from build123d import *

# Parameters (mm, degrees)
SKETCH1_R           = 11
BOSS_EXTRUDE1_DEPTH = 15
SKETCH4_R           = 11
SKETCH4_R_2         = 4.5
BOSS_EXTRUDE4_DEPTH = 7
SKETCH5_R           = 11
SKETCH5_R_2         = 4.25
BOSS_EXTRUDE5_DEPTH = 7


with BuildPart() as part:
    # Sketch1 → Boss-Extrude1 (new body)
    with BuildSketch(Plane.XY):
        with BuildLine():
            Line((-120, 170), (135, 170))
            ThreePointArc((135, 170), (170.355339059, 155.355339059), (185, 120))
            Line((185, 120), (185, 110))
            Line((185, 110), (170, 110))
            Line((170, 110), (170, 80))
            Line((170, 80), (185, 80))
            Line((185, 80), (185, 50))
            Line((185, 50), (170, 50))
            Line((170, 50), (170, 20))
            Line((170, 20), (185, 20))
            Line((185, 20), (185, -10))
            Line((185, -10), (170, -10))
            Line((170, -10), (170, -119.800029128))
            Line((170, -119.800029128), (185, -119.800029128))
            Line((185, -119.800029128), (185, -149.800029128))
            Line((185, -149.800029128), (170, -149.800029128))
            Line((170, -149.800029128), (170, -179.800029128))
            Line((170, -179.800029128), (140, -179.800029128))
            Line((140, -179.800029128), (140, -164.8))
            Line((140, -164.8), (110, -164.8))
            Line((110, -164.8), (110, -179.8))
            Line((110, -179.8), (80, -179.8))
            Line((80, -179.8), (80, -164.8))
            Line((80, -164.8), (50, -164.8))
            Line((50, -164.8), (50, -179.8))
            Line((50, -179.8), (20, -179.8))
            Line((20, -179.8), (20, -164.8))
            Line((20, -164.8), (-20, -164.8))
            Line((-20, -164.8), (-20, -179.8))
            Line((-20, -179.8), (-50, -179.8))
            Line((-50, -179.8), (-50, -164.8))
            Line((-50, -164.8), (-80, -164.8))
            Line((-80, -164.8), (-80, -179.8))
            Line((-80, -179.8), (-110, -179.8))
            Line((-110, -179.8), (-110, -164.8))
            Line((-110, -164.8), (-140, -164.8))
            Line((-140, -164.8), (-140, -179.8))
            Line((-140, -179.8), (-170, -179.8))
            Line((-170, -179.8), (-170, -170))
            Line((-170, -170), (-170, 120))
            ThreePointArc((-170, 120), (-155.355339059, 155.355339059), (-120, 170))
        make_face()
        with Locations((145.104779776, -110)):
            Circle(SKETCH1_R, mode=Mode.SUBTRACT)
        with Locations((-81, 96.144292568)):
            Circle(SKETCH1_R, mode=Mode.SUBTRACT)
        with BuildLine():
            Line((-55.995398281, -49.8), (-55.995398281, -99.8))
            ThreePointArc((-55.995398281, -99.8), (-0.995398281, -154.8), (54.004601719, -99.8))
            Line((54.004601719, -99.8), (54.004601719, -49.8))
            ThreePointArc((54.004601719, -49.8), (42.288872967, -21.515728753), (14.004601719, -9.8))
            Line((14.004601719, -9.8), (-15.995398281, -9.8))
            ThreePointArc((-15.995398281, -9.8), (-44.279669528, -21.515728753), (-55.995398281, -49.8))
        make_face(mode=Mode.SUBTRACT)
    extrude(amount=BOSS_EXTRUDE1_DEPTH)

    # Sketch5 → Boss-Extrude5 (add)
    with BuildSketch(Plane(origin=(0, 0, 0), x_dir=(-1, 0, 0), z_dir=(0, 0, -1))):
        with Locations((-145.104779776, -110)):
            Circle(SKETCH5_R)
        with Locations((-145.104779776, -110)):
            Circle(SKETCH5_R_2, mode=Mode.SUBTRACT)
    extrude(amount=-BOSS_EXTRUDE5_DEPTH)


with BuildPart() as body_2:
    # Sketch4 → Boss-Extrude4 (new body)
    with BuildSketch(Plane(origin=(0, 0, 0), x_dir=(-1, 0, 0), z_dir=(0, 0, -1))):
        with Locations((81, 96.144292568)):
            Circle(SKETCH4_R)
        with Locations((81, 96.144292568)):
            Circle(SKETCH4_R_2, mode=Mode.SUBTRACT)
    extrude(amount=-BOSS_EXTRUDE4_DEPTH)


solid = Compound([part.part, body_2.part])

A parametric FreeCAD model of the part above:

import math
import FreeCAD as App
import Part
import Sketcher
Q = App.Units.Quantity

doc = App.newDocument("Part")
params = doc.addObject("Spreadsheet::Sheet", "Params")
for row, (alias, value) in enumerate([
    ("sketch1_diameter", "22 mm"),
    ("sketch1_radius", "50 mm"),
    ("sketch1_radius2", "40 mm"),
    ("sketch1_radius3", "55 mm"),
    ("sketch1_width", "255 mm"),
    ("pad1_length", "15 mm"),
    ("sketch2_diameter", "22 mm"),
    ("sketch2_diameter2", "8.5 mm"),
    ("pad2_length", "7 mm"),
    ("sketch3_diameter", "22 mm"),
    ("sketch3_diameter2", "9 mm"),
    ("pad3_length", "7 mm"),
], start=1):
    params.set(f"A{row}", alias)
    params.set(f"B{row}", "=" + value)
    params.setAlias(f"B{row}", alias)

body = doc.addObject("PartDesign::Body", "Body")

# Sketch on XY plane
sketch1 = doc.addObject("Sketcher::SketchObject", "Sketch")
body.addObject(sketch1)
sketch1.AttachmentSupport = (doc.XY_Plane, [""])
sketch1.MapMode = "FlatFace"
sketch1.addGeometry([
    Part.LineSegment(App.Vector(135, 170, 0), App.Vector(-120, 170, 0)),  # 0
    Part.ArcOfCircle(Part.Circle(App.Vector(-120, 120, 0), App.Vector(0, 0, 1), 50), math.radians(90), math.radians(180)),  # 1
    Part.LineSegment(App.Vector(-170, 120, 0), App.Vector(-170, -180, 0)),  # 2
    Part.LineSegment(App.Vector(-170, -180, 0), App.Vector(-140, -180, 0)),  # 3
    Part.LineSegment(App.Vector(-140, -180, 0), App.Vector(-140, -165, 0)),  # 4
    Part.LineSegment(App.Vector(-140, -165, 0), App.Vector(-110, -165, 0)),  # 5
    Part.LineSegment(App.Vector(-110, -165, 0), App.Vector(-110, -180, 0)),  # 6
    Part.LineSegment(App.Vector(-110, -180, 0), App.Vector(-80, -180, 0)),  # 7
    Part.LineSegment(App.Vector(-80, -180, 0), App.Vector(-80, -165, 0)),  # 8
    Part.LineSegment(App.Vector(-80, -165, 0), App.Vector(-50, -165, 0)),  # 9
    Part.LineSegment(App.Vector(-50, -165, 0), App.Vector(-50, -180, 0)),  # 10
    Part.LineSegment(App.Vector(-50, -180, 0), App.Vector(-20, -180, 0)),  # 11
    Part.LineSegment(App.Vector(-20, -180, 0), App.Vector(-20, -165, 0)),  # 12
    Part.LineSegment(App.Vector(-20, -165, 0), App.Vector(20, -165, 0)),  # 13
    Part.LineSegment(App.Vector(20, -165, 0), App.Vector(20, -180, 0)),  # 14
    Part.LineSegment(App.Vector(20, -180, 0), App.Vector(50, -180, 0)),  # 15
    Part.LineSegment(App.Vector(50, -180, 0), App.Vector(50, -165, 0)),  # 16
    Part.LineSegment(App.Vector(50, -165, 0), App.Vector(80, -165, 0)),  # 17
    Part.LineSegment(App.Vector(80, -165, 0), App.Vector(80, -180, 0)),  # 18
    Part.LineSegment(App.Vector(80, -180, 0), App.Vector(110, -180, 0)),  # 19
    Part.LineSegment(App.Vector(110, -180, 0), App.Vector(110, -165, 0)),  # 20
    Part.LineSegment(App.Vector(110, -165, 0), App.Vector(140, -165, 0)),  # 21
    Part.LineSegment(App.Vector(140, -165, 0), App.Vector(140, -180, 0)),  # 22
    Part.LineSegment(App.Vector(140, -180, 0), App.Vector(170, -180, 0)),  # 23
    Part.LineSegment(App.Vector(170, -180, 0), App.Vector(170, -150, 0)),  # 24
    Part.LineSegment(App.Vector(170, -150, 0), App.Vector(185, -150, 0)),  # 25
    Part.LineSegment(App.Vector(185, -150, 0), App.Vector(185, -120, 0)),  # 26
    Part.LineSegment(App.Vector(185, -120, 0), App.Vector(170, -120, 0)),  # 27
    Part.LineSegment(App.Vector(170, -120, 0), App.Vector(170, -10, 0)),  # 28
    Part.LineSegment(App.Vector(170, -10, 0), App.Vector(185, -10, 0)),  # 29
    Part.LineSegment(App.Vector(185, -10, 0), App.Vector(185, 20, 0)),  # 30
    Part.LineSegment(App.Vector(185, 20, 0), App.Vector(170, 20, 0)),  # 31
    Part.LineSegment(App.Vector(170, 20, 0), App.Vector(170, 50, 0)),  # 32
    Part.LineSegment(App.Vector(170, 50, 0), App.Vector(185, 50, 0)),  # 33
    Part.LineSegment(App.Vector(185, 50, 0), App.Vector(185, 80, 0)),  # 34
    Part.LineSegment(App.Vector(185, 80, 0), App.Vector(170, 80, 0)),  # 35
    Part.LineSegment(App.Vector(170, 80, 0), App.Vector(170, 110, 0)),  # 36
    Part.LineSegment(App.Vector(170, 110, 0), App.Vector(185, 110, 0)),  # 37
    Part.LineSegment(App.Vector(185, 110, 0), App.Vector(185, 120, 0)),  # 38
    Part.ArcOfCircle(Part.Circle(App.Vector(135, 120, 0), App.Vector(0, 0, 1), 50), math.radians(0), math.radians(90)),  # 39
    Part.Circle(App.Vector(145, -110, 0), App.Vector(0, 0, 1), 11),  # 40
    Part.ArcOfCircle(Part.Circle(App.Vector(-16, -50, 0), App.Vector(0, 0, 1), 40), math.radians(90), math.radians(180)),  # 41
    Part.LineSegment(App.Vector(-16, -10, 0), App.Vector(14, -10, 0)),  # 42
    Part.ArcOfCircle(Part.Circle(App.Vector(14, -50, 0), App.Vector(0, 0, 1), 40), math.radians(0), math.radians(90)),  # 43
    Part.LineSegment(App.Vector(54, -50, 0), App.Vector(54, -100, 0)),  # 44
    Part.ArcOfCircle(Part.Circle(App.Vector(-1, -100, 0), App.Vector(0, 0, 1), 55), math.radians(180), math.radians(360)),  # 45
    Part.LineSegment(App.Vector(-56, -100, 0), App.Vector(-56, -50, 0)),  # 46
    Part.Circle(App.Vector(-81, 96, 0), App.Vector(0, 0, 1), 11),  # 47
], False)
sketch1.addConstraint([
    Sketcher.Constraint("Tangent", 0, 2, 1, 1),
    Sketcher.Constraint("Tangent", 1, 2, 2, 1),
    Sketcher.Constraint("Coincident", 2, 2, 3, 1),
    Sketcher.Constraint("Coincident", 3, 2, 4, 1),
    Sketcher.Constraint("Coincident", 4, 2, 5, 1),
    Sketcher.Constraint("Coincident", 5, 2, 6, 1),
    Sketcher.Constraint("Coincident", 6, 2, 7, 1),
    Sketcher.Constraint("Coincident", 7, 2, 8, 1),
    Sketcher.Constraint("Coincident", 8, 2, 9, 1),
    Sketcher.Constraint("Coincident", 9, 2, 10, 1),
    Sketcher.Constraint("Coincident", 10, 2, 11, 1),
    Sketcher.Constraint("Coincident", 11, 2, 12, 1),
    Sketcher.Constraint("Coincident", 12, 2, 13, 1),
    Sketcher.Constraint("Coincident", 13, 2, 14, 1),
    Sketcher.Constraint("Coincident", 14, 2, 15, 1),
    Sketcher.Constraint("Coincident", 15, 2, 16, 1),
    Sketcher.Constraint("Coincident", 16, 2, 17, 1),
    Sketcher.Constraint("Coincident", 17, 2, 18, 1),
    Sketcher.Constraint("Coincident", 18, 2, 19, 1),
    Sketcher.Constraint("Coincident", 19, 2, 20, 1),
    Sketcher.Constraint("Coincident", 20, 2, 21, 1),
    Sketcher.Constraint("Coincident", 21, 2, 22, 1),
    Sketcher.Constraint("Coincident", 22, 2, 23, 1),
    Sketcher.Constraint("Coincident", 23, 2, 24, 1),
    Sketcher.Constraint("Coincident", 24, 2, 25, 1),
    Sketcher.Constraint("Coincident", 25, 2, 26, 1),
    Sketcher.Constraint("Coincident", 26, 2, 27, 1),
    Sketcher.Constraint("Coincident", 27, 2, 28, 1),
    Sketcher.Constraint("Coincident", 28, 2, 29, 1),
    Sketcher.Constraint("Coincident", 29, 2, 30, 1),
    Sketcher.Constraint("Coincident", 30, 2, 31, 1),
    Sketcher.Constraint("Coincident", 31, 2, 32, 1),
    Sketcher.Constraint("Coincident", 32, 2, 33, 1),
    Sketcher.Constraint("Coincident", 33, 2, 34, 1),
    Sketcher.Constraint("Coincident", 34, 2, 35, 1),
    Sketcher.Constraint("Coincident", 35, 2, 36, 1),
    Sketcher.Constraint("Coincident", 36, 2, 37, 1),
    Sketcher.Constraint("Coincident", 37, 2, 38, 1),
    Sketcher.Constraint("Tangent", 38, 2, 39, 1),
    Sketcher.Constraint("Tangent", 39, 2, 0, 1),
    Sketcher.Constraint("Tangent", 41, 1, 42, 1),
    Sketcher.Constraint("Tangent", 42, 2, 43, 2),
    Sketcher.Constraint("Tangent", 43, 1, 44, 1),
    Sketcher.Constraint("Tangent", 44, 2, 45, 2),
    Sketcher.Constraint("Tangent", 45, 1, 46, 1),
    Sketcher.Constraint("Tangent", 46, 2, 41, 2),
    Sketcher.Constraint("Horizontal", 0),
    Sketcher.Constraint("Vertical", 2),
    Sketcher.Constraint("Horizontal", 3),
    Sketcher.Constraint("Vertical", 4),
    Sketcher.Constraint("Horizontal", 5),
    Sketcher.Constraint("Vertical", 6),
    Sketcher.Constraint("Horizontal", 7),
    Sketcher.Constraint("Vertical", 8),
    Sketcher.Constraint("Horizontal", 9),
    Sketcher.Constraint("Vertical", 10),
    Sketcher.Constraint("Horizontal", 11),
    Sketcher.Constraint("Vertical", 12),
    Sketcher.Constraint("Horizontal", 13),
    Sketcher.Constraint("Vertical", 14),
    Sketcher.Constraint("Horizontal", 15),
    Sketcher.Constraint("Vertical", 16),
    Sketcher.Constraint("Horizontal", 17),
    Sketcher.Constraint("Vertical", 18),
    Sketcher.Constraint("Horizontal", 19),
    Sketcher.Constraint("Vertical", 20),
    Sketcher.Constraint("Horizontal", 21),
    Sketcher.Constraint("Vertical", 22),
    Sketcher.Constraint("Horizontal", 23),
    Sketcher.Constraint("Vertical", 24),
    Sketcher.Constraint("Horizontal", 25),
    Sketcher.Constraint("Vertical", 26),
    Sketcher.Constraint("Horizontal", 27),
    Sketcher.Constraint("Vertical", 28),
    Sketcher.Constraint("Horizontal", 29),
    Sketcher.Constraint("Vertical", 30),
    Sketcher.Constraint("Horizontal", 31),
    Sketcher.Constraint("Vertical", 32),
    Sketcher.Constraint("Horizontal", 33),
    Sketcher.Constraint("Vertical", 34),
    Sketcher.Constraint("Horizontal", 35),
    Sketcher.Constraint("Vertical", 36),
    Sketcher.Constraint("Horizontal", 37),
    Sketcher.Constraint("Vertical", 38),
    Sketcher.Constraint("Horizontal", 42),
    Sketcher.Constraint("Vertical", 44),
    Sketcher.Constraint("Vertical", 46),
    Sketcher.Constraint("Equal", 1, 39),
    Sketcher.Constraint("Equal", 41, 43),
    Sketcher.Constraint("Equal", 40, 47),
    Sketcher.Constraint("Symmetric", 11, 2, 14, 2, -2),
    Sketcher.Constraint("Symmetric", 9, 2, 16, 2, -2),
    Sketcher.Constraint("Symmetric", 7, 2, 18, 2, -2),
    Sketcher.Constraint("Symmetric", 5, 2, 20, 2, -2),
    Sketcher.Constraint("Horizontal", 3, 2, 6, 2),
    Sketcher.Constraint("Horizontal", 5, 2, 8, 2),
    Sketcher.Constraint("Horizontal", 7, 2, 10, 2),
    Sketcher.Constraint("Horizontal", 9, 2, 12, 2),
    Sketcher.Constraint("Vertical", 24, 2, 27, 2),
    Sketcher.Constraint("Vertical", 26, 2, 29, 2),
    Sketcher.Constraint("Vertical", 28, 2, 31, 2),
    Sketcher.Constraint("Vertical", 30, 2, 33, 2),
    Sketcher.Constraint("Vertical", 32, 2, 35, 2),
    Sketcher.Constraint("Vertical", 34, 2, 37, 2),
    Sketcher.Constraint("Equal", 3, 5),
    Sketcher.Constraint("Equal", 5, 7),
    Sketcher.Constraint("Equal", 7, 9),
    Sketcher.Constraint("Equal", 9, 11),
    Sketcher.Constraint("Equal", 19, 21),
    Sketcher.Constraint("Equal", 21, 23),
    Sketcher.Constraint("Equal", 23, 42),
    Sketcher.Constraint("Equal", 37, 4),
    Sketcher.Constraint("Equal", 42, 24),
    Sketcher.Constraint("Equal", 24, 26),
    Sketcher.Constraint("Equal", 26, 30),
    Sketcher.Constraint("Equal", 30, 32),
    Sketcher.Constraint("Equal", 32, 34),
    Sketcher.Constraint("Equal", 34, 36),
    Sketcher.Constraint("Diameter", 40, Q("22 mm")),
    Sketcher.Constraint("Radius", 1, Q("50 mm")),
    Sketcher.Constraint("Radius", 41, Q("40 mm")),
    Sketcher.Constraint("Radius", 45, Q("55 mm")),
    Sketcher.Constraint("DistanceX", 0, 2, 0, 1, Q("255 mm")),
    Sketcher.Constraint("DistanceX", 13, 1, 13, 2, Q("40 mm")),
    Sketcher.Constraint("DistanceY", 38, 1, 38, 2, Q("10 mm")),
    Sketcher.Constraint("DistanceY", 44, 2, 44, 1, Q("50 mm")),
    Sketcher.Constraint("DistanceY", 2, 2, 2, 1, Q("299.8 mm")),
    Sketcher.Constraint("DistanceY", -1, 1, 1, 3, Q("120 mm")),
    Sketcher.Constraint("DistanceY", 40, 3, -1, 1, Q("110 mm")),
    Sketcher.Constraint("DistanceX", 47, 3, -1, 1, Q("81 mm")),
    Sketcher.Constraint("DistanceY", 2, 2, 45, 3, Q("80 mm")),
    Sketcher.Constraint("DistanceY", 22, 2, 22, 1, Q("15.000029 mm")),
    Sketcher.Constraint("DistanceX", 41, 3, -1, 1, Q("15.995398 mm")),
    Sketcher.Constraint("DistanceX", -1, 1, 40, 3, Q("145.10478 mm")),
    Sketcher.Constraint("DistanceY", -1, 1, 47, 3, Q("96.144293 mm")),
])
sketch1.setExpression("Constraints[118]", "Params.sketch1_diameter")
sketch1.setExpression("Constraints[119]", "Params.sketch1_radius")
sketch1.setExpression("Constraints[120]", "Params.sketch1_radius2")
sketch1.setExpression("Constraints[121]", "Params.sketch1_radius3")
sketch1.setExpression("Constraints[122]", "Params.sketch1_width")
pad1 = doc.addObject("PartDesign::Pad", "Pad")
body.addObject(pad1)
pad1.Profile = sketch1
pad1.setExpression("Length", "Params.pad1_length")

# Sketch on XY plane
sketch2 = doc.addObject("Sketcher::SketchObject", "Sketch001")
body.addObject(sketch2)
sketch2.AttachmentSupport = (doc.XY_Plane, [""])
sketch2.MapMode = "FlatFace"
sketch2.addGeometry([
    Part.Circle(App.Vector(145.1, -110, 0), App.Vector(0, 0, 1), 11),
    Part.Circle(App.Vector(145.1, -110, 0), App.Vector(0, 0, 1), 4.2),
], False)
sketch2.addConstraint([
    Sketcher.Constraint("Coincident", 1, 3, 0, 3),
    Sketcher.Constraint("Diameter", 0, Q("22 mm")),
    Sketcher.Constraint("Diameter", 1, Q("8.5 mm")),
    Sketcher.Constraint("DistanceY", 0, 3, -1, 1, Q("110 mm")),
    Sketcher.Constraint("DistanceX", -1, 1, 0, 3, Q("145.10478 mm")),
])
sketch2.setExpression("Constraints[1]", "Params.sketch2_diameter")
sketch2.setExpression("Constraints[2]", "Params.sketch2_diameter2")
pad2 = doc.addObject("PartDesign::Pad", "Pad001")
body.addObject(pad2)
pad2.Profile = sketch2
pad2.setExpression("Length", "Params.pad2_length")
body2 = doc.addObject("PartDesign::Body", "Body001")

# Sketch on XY plane
sketch3 = doc.addObject("Sketcher::SketchObject", "Sketch002")
body2.addObject(sketch3)
sketch3.AttachmentSupport = (doc.getObject("XY_Plane001"), [""])
sketch3.MapMode = "FlatFace"
sketch3.addGeometry([
    Part.Circle(App.Vector(-81, 96.1, 0), App.Vector(0, 0, 1), 11),
    Part.Circle(App.Vector(-81, 96.1, 0), App.Vector(0, 0, 1), 4.5),
], False)
sketch3.addConstraint([
    Sketcher.Constraint("Coincident", 1, 3, 0, 3),
    Sketcher.Constraint("Diameter", 0, Q("22 mm")),
    Sketcher.Constraint("Diameter", 1, Q("9 mm")),
    Sketcher.Constraint("DistanceX", 0, 3, -1, 1, Q("81 mm")),
    Sketcher.Constraint("DistanceY", -1, 1, 0, 3, Q("96.144293 mm")),
])
sketch3.setExpression("Constraints[1]", "Params.sketch3_diameter")
sketch3.setExpression("Constraints[2]", "Params.sketch3_diameter2")
pad3 = doc.addObject("PartDesign::Pad", "Pad002")
body2.addObject(pad3)
pad3.Profile = sketch3
pad3.setExpression("Length", "Params.pad3_length")

doc.recompute()
